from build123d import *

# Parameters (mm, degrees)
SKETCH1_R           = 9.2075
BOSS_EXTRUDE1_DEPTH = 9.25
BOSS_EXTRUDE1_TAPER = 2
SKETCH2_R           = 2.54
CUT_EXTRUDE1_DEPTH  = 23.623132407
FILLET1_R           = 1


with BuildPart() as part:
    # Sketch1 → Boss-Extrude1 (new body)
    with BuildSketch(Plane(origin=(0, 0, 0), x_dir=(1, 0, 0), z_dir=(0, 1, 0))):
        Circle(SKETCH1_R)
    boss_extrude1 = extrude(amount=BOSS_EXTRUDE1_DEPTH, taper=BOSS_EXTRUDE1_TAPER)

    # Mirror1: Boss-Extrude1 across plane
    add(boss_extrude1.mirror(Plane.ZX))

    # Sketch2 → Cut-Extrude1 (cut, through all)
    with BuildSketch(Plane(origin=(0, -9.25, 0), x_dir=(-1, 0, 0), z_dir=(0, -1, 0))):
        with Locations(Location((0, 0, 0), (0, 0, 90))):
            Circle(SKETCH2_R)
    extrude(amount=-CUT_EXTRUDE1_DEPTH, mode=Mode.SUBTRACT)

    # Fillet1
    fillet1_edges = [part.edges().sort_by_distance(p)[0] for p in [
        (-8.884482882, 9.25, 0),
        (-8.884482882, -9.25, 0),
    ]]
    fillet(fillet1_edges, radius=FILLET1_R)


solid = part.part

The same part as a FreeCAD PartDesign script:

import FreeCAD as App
import Part
import Sketcher
from FreeCAD import Vector
Q = App.Units.Quantity


def edges_at(feature, points):
    """Names of the edges that pass closest to the given points."""
    edges = feature.Shape.Edges
    near = lambda p: min(range(len(edges)), key=lambda i: edges[i].distToShape(Part.Vertex(*p))[0])
    return sorted({f"Edge{near(p) + 1}" for p in points})

doc = App.newDocument("Part")
params = doc.addObject("Spreadsheet::Sheet", "Params")
for row, (alias, value) in enumerate([
    ("sketch1_diameter", "0.725 in"),
    ("pad1_length", "9.25 mm"),
    ("pad1_taper", "-2 deg"),
    ("sketch2_diameter", "0.2 in"),
    ("fillet_radius", "1 mm"),
], start=1):
    params.set(f"A{row}", alias)
    params.set(f"B{row}", "=" + value)
    params.setAlias(f"B{row}", alias)

body = doc.addObject("PartDesign::Body", "Body")

# Sketch on XZ plane
sketch1 = body.newObject("Sketcher::SketchObject", "Sketch")
sketch1.AttachmentSupport = (doc.getObject("XZ_Plane"), [""])
sketch1.MapMode = "FlatFace"
sketch1.addGeometry(Part.Circle(Vector(0, 0, 0), Vector(0, 0, 1), 9.2075), False)
sketch1.addConstraint([
    Sketcher.Constraint("Coincident", 0, 3, -1, 1),
    Sketcher.Constraint("Diameter", 0, Q("0.725 in")),
])
sketch1.setExpression("Constraints[1]", "Params.sketch1_diameter")
pad1 = body.newObject("PartDesign::Pad", "Pad")
pad1.Profile = sketch1
pad1.setExpression("Length", "Params.pad1_length")
pad1.Reversed = True
pad1.setExpression("TaperAngle", "Params.pad1_taper")
doc.recompute()

mirrored = body.newObject("PartDesign::Mirrored", "Mirrored")
mirrored.Originals = [pad1]
mirrored.MirrorPlane = (doc.getObject("XZ_Plane"), [""])
body.Tip = mirrored

# Sketch on XZ plane
sketch2 = body.newObject("Sketcher::SketchObject", "Sketch001")
sketch2.AttachmentSupport = (doc.getObject("XZ_Plane"), [""])
sketch2.MapMode = "FlatFace"
sketch2.AttachmentOffset = App.Placement(Vector(0, 0, 9.25), App.Rotation())
sketch2.addGeometry(Part.Circle(Vector(0, 0, 0), Vector(0, 0, 1), 2.54), False)
sketch2.addConstraint([
    Sketcher.Constraint("Coincident", 0, 3, -1, 1),
    Sketcher.Constraint("Diameter", 0, Q("0.2 in")),
])
sketch2.setExpression("Constraints[1]", "Params.sketch2_diameter")
pocket1 = body.newObject("PartDesign::Pocket", "Pocket")
pocket1.Profile = sketch2
pocket1.Type = "ThroughAll"
doc.recompute()

fillet = body.newObject("PartDesign::Fillet", "Fillet")
fillet.Base = (pocket1, edges_at(pocket1, [(-8.884, 9.25, 0), (-8.884, -9.25, 0)]))
fillet.setExpression("Radius", "Params.fillet_radius")

doc.recompute()
